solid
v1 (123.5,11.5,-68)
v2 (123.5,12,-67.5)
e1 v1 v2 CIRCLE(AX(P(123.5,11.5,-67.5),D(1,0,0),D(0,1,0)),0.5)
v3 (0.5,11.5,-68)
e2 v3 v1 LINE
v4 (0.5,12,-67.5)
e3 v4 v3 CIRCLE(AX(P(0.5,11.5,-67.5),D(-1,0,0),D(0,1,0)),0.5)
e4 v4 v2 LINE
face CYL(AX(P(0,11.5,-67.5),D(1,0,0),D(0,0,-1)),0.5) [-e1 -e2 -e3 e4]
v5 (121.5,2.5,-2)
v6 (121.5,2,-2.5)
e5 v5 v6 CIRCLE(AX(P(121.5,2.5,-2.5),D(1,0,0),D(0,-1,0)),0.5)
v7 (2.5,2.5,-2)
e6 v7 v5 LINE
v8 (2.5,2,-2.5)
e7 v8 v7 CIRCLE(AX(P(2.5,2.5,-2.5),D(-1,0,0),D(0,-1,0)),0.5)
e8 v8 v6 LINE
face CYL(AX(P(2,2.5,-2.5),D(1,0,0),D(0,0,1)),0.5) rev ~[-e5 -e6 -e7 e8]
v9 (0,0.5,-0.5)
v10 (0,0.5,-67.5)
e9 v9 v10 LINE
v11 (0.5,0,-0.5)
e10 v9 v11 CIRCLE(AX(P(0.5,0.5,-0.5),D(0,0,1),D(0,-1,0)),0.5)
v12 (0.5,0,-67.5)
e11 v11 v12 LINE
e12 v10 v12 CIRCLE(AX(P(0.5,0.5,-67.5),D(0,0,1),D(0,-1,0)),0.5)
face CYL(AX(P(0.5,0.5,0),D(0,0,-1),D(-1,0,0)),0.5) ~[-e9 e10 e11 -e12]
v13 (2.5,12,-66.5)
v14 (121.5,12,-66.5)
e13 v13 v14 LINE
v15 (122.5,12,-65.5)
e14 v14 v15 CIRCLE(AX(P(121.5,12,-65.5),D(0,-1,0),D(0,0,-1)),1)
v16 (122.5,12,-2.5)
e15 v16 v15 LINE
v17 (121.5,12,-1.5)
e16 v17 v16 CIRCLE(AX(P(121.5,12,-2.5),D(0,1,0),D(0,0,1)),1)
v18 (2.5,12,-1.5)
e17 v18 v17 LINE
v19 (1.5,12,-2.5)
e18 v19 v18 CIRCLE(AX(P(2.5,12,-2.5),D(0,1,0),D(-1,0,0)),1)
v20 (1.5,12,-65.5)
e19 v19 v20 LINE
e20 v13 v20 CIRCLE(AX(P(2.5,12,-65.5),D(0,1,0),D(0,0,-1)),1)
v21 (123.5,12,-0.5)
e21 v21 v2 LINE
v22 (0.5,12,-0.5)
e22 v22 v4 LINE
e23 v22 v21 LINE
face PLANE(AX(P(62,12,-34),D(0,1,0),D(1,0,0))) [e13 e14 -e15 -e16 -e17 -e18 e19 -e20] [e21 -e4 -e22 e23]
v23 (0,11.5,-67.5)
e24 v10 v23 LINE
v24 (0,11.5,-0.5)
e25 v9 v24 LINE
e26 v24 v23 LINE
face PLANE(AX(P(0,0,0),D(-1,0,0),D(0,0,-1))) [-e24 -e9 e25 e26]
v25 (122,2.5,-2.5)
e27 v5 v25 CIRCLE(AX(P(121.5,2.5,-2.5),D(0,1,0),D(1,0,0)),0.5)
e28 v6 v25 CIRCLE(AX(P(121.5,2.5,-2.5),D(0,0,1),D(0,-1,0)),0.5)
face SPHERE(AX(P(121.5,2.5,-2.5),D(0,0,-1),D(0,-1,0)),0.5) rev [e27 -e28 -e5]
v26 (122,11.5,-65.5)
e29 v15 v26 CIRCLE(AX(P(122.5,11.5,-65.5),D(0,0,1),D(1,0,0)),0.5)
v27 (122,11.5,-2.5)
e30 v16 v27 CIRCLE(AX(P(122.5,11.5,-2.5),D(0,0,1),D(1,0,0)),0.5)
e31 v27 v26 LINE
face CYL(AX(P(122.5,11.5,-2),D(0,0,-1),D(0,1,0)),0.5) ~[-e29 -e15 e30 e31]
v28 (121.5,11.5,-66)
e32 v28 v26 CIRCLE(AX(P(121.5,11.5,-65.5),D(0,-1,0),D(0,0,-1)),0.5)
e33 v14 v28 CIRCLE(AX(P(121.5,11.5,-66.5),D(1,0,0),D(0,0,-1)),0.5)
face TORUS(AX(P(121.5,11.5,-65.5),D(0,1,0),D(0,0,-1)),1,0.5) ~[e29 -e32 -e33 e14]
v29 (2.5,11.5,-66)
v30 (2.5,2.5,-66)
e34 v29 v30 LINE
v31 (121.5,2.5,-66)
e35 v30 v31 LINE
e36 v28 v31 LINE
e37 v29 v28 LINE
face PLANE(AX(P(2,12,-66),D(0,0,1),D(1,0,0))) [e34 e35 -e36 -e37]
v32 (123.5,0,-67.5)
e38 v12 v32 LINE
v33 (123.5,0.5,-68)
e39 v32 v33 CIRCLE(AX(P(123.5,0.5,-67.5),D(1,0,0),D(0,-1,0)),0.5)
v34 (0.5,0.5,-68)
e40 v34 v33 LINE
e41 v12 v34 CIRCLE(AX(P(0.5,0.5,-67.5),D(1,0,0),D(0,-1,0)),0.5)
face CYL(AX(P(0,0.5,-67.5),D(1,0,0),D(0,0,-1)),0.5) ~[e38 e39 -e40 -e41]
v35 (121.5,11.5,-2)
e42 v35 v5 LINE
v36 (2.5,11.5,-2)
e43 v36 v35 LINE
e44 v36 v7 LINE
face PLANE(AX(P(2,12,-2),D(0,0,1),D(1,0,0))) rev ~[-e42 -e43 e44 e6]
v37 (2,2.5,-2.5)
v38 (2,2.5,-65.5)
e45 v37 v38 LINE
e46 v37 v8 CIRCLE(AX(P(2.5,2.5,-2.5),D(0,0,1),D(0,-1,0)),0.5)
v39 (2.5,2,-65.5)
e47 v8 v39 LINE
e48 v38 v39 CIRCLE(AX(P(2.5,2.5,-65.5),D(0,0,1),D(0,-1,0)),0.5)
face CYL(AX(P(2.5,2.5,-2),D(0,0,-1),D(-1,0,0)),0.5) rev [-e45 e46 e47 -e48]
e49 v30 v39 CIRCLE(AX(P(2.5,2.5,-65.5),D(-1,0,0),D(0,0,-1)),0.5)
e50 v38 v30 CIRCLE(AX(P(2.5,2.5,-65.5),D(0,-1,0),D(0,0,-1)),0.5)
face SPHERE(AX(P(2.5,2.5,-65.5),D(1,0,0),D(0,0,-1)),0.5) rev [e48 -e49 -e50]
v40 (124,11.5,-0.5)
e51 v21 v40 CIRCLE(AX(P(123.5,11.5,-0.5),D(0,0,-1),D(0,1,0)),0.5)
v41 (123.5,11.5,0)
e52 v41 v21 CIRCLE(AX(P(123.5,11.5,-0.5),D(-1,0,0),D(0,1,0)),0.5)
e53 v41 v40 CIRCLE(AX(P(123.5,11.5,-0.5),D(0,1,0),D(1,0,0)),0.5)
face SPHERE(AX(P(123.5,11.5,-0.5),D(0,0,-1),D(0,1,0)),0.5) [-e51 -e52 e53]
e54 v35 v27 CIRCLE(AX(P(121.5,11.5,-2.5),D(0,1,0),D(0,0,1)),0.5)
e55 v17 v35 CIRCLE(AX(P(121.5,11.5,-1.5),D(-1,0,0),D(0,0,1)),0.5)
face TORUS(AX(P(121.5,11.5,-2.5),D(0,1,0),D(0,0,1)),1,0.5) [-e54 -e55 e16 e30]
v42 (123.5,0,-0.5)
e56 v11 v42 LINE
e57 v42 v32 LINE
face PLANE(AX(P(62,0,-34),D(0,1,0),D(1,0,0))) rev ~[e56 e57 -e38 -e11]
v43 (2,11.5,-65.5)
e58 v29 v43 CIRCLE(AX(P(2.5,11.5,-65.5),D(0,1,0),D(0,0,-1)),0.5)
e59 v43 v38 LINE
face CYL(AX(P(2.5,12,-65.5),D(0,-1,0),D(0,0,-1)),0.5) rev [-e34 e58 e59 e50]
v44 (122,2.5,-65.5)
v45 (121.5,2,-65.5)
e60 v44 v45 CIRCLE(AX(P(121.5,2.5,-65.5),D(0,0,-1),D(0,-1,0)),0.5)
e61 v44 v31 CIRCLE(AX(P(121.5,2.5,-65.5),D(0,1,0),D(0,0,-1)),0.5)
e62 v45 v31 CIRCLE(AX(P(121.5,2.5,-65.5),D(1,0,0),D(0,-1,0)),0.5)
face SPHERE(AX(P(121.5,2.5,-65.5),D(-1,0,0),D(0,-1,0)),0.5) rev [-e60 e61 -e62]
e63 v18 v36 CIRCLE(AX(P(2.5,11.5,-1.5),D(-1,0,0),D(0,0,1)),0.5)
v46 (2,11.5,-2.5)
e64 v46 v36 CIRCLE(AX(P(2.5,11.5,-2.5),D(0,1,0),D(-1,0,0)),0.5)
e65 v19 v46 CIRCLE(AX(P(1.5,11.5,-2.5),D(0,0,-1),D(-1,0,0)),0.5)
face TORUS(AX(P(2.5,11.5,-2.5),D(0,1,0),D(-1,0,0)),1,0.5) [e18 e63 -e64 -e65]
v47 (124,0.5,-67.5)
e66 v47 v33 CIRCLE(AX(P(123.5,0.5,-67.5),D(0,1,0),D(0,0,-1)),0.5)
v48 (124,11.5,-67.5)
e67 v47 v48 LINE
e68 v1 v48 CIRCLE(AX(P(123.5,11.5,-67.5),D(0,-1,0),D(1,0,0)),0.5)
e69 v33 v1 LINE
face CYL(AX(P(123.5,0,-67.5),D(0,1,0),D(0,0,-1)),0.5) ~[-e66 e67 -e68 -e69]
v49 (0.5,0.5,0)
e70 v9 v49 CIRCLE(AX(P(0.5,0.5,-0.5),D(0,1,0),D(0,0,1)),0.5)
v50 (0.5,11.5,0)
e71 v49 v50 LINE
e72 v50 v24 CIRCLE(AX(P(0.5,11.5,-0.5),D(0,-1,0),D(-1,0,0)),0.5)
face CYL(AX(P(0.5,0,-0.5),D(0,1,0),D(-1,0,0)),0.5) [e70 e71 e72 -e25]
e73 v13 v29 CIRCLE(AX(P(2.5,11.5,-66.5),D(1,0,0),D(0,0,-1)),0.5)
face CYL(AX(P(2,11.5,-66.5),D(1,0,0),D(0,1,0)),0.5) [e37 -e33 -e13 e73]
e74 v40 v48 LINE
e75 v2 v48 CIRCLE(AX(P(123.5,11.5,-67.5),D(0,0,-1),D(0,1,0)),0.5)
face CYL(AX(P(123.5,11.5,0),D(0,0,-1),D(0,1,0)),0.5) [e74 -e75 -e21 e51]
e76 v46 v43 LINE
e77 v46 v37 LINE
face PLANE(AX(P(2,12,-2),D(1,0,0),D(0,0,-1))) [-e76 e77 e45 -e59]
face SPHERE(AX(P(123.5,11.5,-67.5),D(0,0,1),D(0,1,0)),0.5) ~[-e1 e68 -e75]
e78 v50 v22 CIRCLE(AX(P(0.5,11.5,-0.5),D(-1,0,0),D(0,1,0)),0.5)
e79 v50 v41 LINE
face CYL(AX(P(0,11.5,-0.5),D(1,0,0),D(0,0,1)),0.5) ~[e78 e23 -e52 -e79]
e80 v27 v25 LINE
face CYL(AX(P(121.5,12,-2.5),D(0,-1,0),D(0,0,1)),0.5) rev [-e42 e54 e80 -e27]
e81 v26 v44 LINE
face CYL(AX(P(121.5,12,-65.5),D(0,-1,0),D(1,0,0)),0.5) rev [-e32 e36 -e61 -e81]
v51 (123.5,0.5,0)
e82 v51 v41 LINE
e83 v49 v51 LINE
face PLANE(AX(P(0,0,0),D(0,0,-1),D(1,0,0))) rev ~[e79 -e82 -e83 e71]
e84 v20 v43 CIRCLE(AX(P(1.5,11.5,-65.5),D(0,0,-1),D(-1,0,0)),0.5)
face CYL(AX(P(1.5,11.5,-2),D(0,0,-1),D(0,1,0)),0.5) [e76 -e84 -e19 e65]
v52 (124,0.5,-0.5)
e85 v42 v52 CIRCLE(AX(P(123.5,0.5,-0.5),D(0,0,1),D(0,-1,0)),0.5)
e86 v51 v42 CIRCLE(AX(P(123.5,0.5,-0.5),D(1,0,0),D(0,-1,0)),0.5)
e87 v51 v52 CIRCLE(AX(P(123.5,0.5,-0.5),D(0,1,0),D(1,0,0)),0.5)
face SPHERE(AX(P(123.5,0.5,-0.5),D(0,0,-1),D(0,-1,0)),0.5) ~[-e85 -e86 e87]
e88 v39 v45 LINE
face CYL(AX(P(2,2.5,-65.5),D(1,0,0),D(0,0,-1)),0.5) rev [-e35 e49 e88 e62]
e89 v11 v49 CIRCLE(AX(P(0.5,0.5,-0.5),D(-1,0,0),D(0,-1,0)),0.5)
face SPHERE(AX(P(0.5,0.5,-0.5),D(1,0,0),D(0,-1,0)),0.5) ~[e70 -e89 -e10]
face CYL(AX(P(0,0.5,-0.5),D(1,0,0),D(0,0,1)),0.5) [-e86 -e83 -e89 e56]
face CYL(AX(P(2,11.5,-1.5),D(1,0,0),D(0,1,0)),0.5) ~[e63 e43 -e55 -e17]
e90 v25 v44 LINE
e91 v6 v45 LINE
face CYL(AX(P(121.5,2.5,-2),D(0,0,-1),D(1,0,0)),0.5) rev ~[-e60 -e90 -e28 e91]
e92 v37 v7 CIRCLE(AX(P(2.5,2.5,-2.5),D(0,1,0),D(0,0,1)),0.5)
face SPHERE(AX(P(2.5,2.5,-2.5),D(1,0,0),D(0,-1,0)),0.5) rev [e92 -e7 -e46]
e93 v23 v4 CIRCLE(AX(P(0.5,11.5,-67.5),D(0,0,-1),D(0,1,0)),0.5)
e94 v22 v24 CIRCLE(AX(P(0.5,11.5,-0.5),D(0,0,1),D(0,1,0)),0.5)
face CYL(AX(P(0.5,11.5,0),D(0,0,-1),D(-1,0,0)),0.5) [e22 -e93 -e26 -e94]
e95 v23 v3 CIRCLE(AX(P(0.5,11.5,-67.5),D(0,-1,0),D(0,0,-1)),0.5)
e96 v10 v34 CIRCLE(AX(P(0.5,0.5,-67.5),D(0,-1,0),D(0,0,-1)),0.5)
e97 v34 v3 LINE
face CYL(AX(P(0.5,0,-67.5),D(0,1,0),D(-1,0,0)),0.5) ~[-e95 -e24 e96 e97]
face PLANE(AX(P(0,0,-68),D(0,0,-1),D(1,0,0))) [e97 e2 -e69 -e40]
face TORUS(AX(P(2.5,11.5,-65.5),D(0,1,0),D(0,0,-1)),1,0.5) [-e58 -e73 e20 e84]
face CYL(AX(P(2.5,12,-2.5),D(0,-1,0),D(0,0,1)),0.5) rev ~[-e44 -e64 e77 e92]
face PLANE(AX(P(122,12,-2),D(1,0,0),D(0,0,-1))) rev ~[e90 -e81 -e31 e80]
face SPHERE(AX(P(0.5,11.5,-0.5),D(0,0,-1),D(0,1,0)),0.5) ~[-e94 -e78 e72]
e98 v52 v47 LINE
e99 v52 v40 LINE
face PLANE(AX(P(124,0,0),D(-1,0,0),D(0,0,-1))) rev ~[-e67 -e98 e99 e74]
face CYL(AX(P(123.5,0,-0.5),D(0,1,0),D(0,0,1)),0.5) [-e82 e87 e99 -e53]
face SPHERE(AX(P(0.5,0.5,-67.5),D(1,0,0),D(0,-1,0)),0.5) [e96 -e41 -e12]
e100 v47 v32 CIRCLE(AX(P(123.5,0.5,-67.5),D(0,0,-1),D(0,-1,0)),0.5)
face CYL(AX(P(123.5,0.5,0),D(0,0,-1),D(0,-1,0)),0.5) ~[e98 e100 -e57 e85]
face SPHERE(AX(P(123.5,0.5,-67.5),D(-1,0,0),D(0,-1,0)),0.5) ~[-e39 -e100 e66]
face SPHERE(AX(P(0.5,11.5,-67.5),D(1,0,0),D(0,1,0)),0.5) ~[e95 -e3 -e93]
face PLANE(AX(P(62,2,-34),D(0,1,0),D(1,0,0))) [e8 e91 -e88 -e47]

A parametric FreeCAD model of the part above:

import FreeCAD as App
import Part
import Sketcher


def add_polygon(sketch, points):
    """Adds a closed chain of lines whose ends are joined by coincident constraints."""
    first, n = sketch.GeometryCount, len(points)
    for a, b in zip(points, points[1:] + points[:1]):
        sketch.addGeometry(Part.LineSegment(App.Vector(*a, 0), App.Vector(*b, 0)), False)
    for i in range(n):
        sketch.addConstraint(Sketcher.Constraint("Coincident", first + i, 2, first + (i + 1) % n, 1))

doc = App.newDocument("Part")
body = doc.addObject("PartDesign::Body", "Body")

sketch1 = body.newObject("Sketcher::SketchObject", "Sketch")
sketch1.AttachmentSupport = (doc.getObject("XZ_Plane"), [""])
sketch1.MapMode = "FlatFace"
add_polygon(sketch1, [(0, -68), (0, 0), (124, 0), (124, -68)])
sketch1.addConstraint(Sketcher.Constraint("Vertical", 0))
sketch1.addConstraint(Sketcher.Constraint("Horizontal", 1))
sketch1.addConstraint(Sketcher.Constraint("Vertical", 2))
sketch1.addConstraint(Sketcher.Constraint("Horizontal", 3))
sketch1.addConstraint(Sketcher.Constraint("Coincident", 0, 2, -1, 1))
sketch1.addConstraint(Sketcher.Constraint("DistanceX", 1, 1, 1, 2, 124.0))
sketch1.addConstraint(Sketcher.Constraint("DistanceY", 0, 1, 0, 2, 68.0))
pad1 = body.newObject("PartDesign::Pad", "Pad")
pad1.Profile = sketch1
pad1.Length = 12
pad1.Reversed = True

sketch2 = body.newObject("Sketcher::SketchObject", "Sketch001")
sketch2.AttachmentSupport = (doc.getObject("XZ_Plane"), [""])
sketch2.MapMode = "FlatFace"
sketch2.AttachmentOffset = App.Placement(App.Vector(0, 0, -12), App.Rotation())
add_polygon(sketch2, [(2, -66), (2, -2), (122, -2), (122, -66)])
sketch2.addConstraint(Sketcher.Constraint("Vertical", 0))
sketch2.addConstraint(Sketcher.Constraint("Horizontal", 1))
sketch2.addConstraint(Sketcher.Constraint("Vertical", 2))
sketch2.addConstraint(Sketcher.Constraint("Horizontal", 3))
sketch2.addConstraint(Sketcher.Constraint("DistanceX", 1, 1, 1, 2, 120.0))
sketch2.addConstraint(Sketcher.Constraint("DistanceY", 0, 1, 0, 2, 64.0))
sketch2.addConstraint(Sketcher.Constraint("DistanceX", -1, 1, 0, 2, 2.0))
sketch2.addConstraint(Sketcher.Constraint("DistanceY", 0, 2, -1, 1, 2.0))
pocket1 = body.newObject("PartDesign::Pocket", "Pocket")
pocket1.Profile = sketch2
pocket1.Length = 10
pocket1.Reversed = True
doc.recompute()

fillet = body.newObject("PartDesign::Fillet", "Fillet")
fillet.Base = (pocket1, ["Edge1"])
fillet.UseAllEdges = True
fillet.Radius = 0.5

doc.recompute()
